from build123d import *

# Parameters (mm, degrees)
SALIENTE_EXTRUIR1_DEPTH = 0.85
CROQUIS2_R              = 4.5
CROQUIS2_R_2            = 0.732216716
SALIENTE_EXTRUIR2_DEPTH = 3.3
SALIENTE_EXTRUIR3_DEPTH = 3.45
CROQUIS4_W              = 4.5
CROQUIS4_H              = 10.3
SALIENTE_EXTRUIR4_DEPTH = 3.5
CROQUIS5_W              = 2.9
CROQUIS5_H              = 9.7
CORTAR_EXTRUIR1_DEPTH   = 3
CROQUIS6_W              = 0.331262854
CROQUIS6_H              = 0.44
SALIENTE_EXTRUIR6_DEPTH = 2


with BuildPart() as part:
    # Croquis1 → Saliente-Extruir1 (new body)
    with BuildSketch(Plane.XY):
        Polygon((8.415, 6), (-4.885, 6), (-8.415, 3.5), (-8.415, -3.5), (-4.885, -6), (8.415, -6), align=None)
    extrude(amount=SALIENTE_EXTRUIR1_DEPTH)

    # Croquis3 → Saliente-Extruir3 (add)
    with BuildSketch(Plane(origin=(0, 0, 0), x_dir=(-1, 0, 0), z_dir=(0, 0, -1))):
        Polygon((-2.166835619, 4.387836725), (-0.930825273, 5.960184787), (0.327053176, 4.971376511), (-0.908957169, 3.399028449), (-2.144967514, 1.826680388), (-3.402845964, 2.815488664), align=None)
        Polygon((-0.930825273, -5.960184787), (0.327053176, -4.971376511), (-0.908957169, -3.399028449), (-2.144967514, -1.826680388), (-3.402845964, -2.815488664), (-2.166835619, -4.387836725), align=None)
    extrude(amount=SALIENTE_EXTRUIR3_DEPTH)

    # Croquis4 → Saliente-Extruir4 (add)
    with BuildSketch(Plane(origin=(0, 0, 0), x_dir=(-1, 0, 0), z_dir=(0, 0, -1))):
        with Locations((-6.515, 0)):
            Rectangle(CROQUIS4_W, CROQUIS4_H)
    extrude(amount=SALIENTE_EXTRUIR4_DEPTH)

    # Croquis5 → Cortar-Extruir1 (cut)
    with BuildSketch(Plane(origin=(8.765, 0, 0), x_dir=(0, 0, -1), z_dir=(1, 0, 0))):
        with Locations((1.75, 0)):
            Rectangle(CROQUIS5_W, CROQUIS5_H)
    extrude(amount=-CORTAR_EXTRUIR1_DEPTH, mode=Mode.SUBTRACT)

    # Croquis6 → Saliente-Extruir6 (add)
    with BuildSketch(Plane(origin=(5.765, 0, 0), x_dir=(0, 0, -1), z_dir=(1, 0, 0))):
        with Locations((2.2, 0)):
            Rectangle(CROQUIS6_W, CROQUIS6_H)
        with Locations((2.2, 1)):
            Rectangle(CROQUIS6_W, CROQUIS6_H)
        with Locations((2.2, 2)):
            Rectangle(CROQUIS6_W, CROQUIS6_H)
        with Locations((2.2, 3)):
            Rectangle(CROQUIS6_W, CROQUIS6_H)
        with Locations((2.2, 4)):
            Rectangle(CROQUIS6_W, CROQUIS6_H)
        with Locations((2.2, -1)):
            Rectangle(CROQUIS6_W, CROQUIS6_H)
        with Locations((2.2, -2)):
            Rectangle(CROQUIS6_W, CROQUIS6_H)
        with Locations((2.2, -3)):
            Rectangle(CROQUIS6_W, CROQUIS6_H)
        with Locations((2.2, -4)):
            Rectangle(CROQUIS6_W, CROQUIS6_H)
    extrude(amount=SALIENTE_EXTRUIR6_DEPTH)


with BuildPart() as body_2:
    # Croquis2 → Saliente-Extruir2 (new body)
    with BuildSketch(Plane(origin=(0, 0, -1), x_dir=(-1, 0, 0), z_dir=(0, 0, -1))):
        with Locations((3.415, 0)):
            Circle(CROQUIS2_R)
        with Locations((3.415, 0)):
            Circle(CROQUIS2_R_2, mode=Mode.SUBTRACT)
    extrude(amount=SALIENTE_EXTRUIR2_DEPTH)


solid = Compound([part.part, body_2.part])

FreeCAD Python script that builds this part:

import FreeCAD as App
import Part
import Sketcher

V = App.Vector
Q = App.Units.Quantity

doc = App.newDocument("Part")
body = doc.addObject("PartDesign::Body", "Body")

# Sketch on XY plane
sketch1 = doc.addObject("Sketcher::SketchObject", "Sketch")
body.addObject(sketch1)
sketch1.AttachmentSupport = (doc.XY_Plane, [""])
sketch1.MapMode = "FlatFace"
sketch1.addGeometry(Part.LineSegment(V(8.4, 6, 0), V(-4.9, 6, 0)), False)
sketch1.addGeometry(Part.LineSegment(V(-4.9, 6, 0), V(-8.4, 3.5, 0)), False)
sketch1.addGeometry(Part.LineSegment(V(-8.4, 3.5, 0), V(-8.4, -3.5, 0)), False)
sketch1.addGeometry(Part.LineSegment(V(-8.4, -3.5, 0), V(-4.9, -6, 0)), False)
sketch1.addGeometry(Part.LineSegment(V(-4.9, -6, 0), V(8.4, -6, 0)), False)
sketch1.addGeometry(Part.LineSegment(V(8.4, -6, 0), V(8.4, 6, 0)), False)
sketch1.addConstraint(Sketcher.Constraint("Coincident", 0, 2, 1, 1))
sketch1.addConstraint(Sketcher.Constraint("Coincident", 1, 2, 2, 1))
sketch1.addConstraint(Sketcher.Constraint("Coincident", 2, 2, 3, 1))
sketch1.addConstraint(Sketcher.Constraint("Coincident", 3, 2, 4, 1))
sketch1.addConstraint(Sketcher.Constraint("Coincident", 4, 2, 5, 1))
sketch1.addConstraint(Sketcher.Constraint("Coincident", 5, 2, 0, 1))
sketch1.addConstraint(Sketcher.Constraint("Horizontal", 0))
sketch1.addConstraint(Sketcher.Constraint("Vertical", 2))
sketch1.addConstraint(Sketcher.Constraint("Horizontal", 4))
sketch1.addConstraint(Sketcher.Constraint("Vertical", 5))
sketch1.addConstraint(Sketcher.Constraint("Symmetric", 0, 2, 3, 2, -1))
sketch1.addConstraint(Sketcher.Constraint("Equal", 1, 3))
sketch1.addConstraint(Sketcher.Constraint("DistanceY", 2, 2, 2, 1, Q("7 mm")))
sketch1.addConstraint(Sketcher.Constraint("DistanceY", 5, 1, 5, 2, Q("12 mm")))
sketch1.addConstraint(Sketcher.Constraint("DistanceX", 0, 2, 0, 1, Q("13.3 mm")))
sketch1.addConstraint(Sketcher.Constraint("DistanceX", 1, 2, 0, 2, Q("3.53 mm")))
sketch1.addConstraint(Sketcher.Constraint("DistanceX", 0, 2, -1, 1, Q("4.885 mm")))
pad1 = doc.addObject("PartDesign::Pad", "Pad")
body.addObject(pad1)
pad1.Profile = sketch1
pad1.Length = 0.85

# Sketch on XY plane
sketch2 = doc.addObject("Sketcher::SketchObject", "Sketch001")
body.addObject(sketch2)
sketch2.AttachmentSupport = (doc.XY_Plane, [""])
sketch2.MapMode = "FlatFace"
sketch2.addGeometry(Part.LineSegment(V(0.9, 6, 0), V(2.2, 4.4, 0)), False)
sketch2.addGeometry(Part.LineSegment(V(2.2, 4.4, 0), V(3.4, 2.8, 0)), False)
sketch2.addGeometry(Part.LineSegment(V(3.4, 2.8, 0), V(2.1, 1.8, 0)), False)
sketch2.addGeometry(Part.LineSegment(V(2.1, 1.8, 0), V(0.9, 3.4, 0)), False)
sketch2.addGeometry(Part.LineSegment(V(0.9, 3.4, 0), V(-0.3, 5, 0)), False)
sketch2.addGeometry(Part.LineSegment(V(-0.3, 5, 0), V(0.9, 6, 0)), False)
sketch2.addGeometry(Part.LineSegment(V(0.9, -6, 0), V(-0.3, -5, 0)), False)
sketch2.addGeometry(Part.LineSegment(V(-0.3, -5, 0), V(0.9, -3.4, 0)), False)
sketch2.addGeometry(Part.LineSegment(V(0.9, -3.4, 0), V(2.1, -1.8, 0)), False)
sketch2.addGeometry(Part.LineSegment(V(2.1, -1.8, 0), V(3.4, -2.8, 0)), False)
sketch2.addGeometry(Part.LineSegment(V(3.4, -2.8, 0), V(2.2, -4.4, 0)), False)
sketch2.addGeometry(Part.LineSegment(V(2.2, -4.4, 0), V(0.9, -6, 0)), False)
sketch2.addConstraint(Sketcher.Constraint("Coincident", 0, 2, 1, 1))
sketch2.addConstraint(Sketcher.Constraint("Coincident", 1, 2, 2, 1))
sketch2.addConstraint(Sketcher.Constraint("Coincident", 2, 2, 3, 1))
sketch2.addConstraint(Sketcher.Constraint("Coincident", 3, 2, 4, 1))
sketch2.addConstraint(Sketcher.Constraint("Coincident", 4, 2, 5, 1))
sketch2.addConstraint(Sketcher.Constraint("Coincident", 5, 2, 0, 1))
sketch2.addConstraint(Sketcher.Constraint("Coincident", 6, 2, 7, 1))
sketch2.addConstraint(Sketcher.Constraint("Coincident", 7, 2, 8, 1))
sketch2.addConstraint(Sketcher.Constraint("Coincident", 8, 2, 9, 1))
sketch2.addConstraint(Sketcher.Constraint("Coincident", 9, 2, 10, 1))
sketch2.addConstraint(Sketcher.Constraint("Coincident", 10, 2, 11, 1))
sketch2.addConstraint(Sketcher.Constraint("Coincident", 11, 2, 6, 1))
sketch2.addConstraint(Sketcher.Constraint("Symmetric", 4, 2, 6, 2, -1))
sketch2.addConstraint(Sketcher.Constraint("Symmetric", 3, 2, 7, 2, -1))
sketch2.addConstraint(Sketcher.Constraint("Symmetric", 2, 2, 8, 2, -1))
sketch2.addConstraint(Sketcher.Constraint("Symmetric", 1, 2, 9, 2, -1))
sketch2.addConstraint(Sketcher.Constraint("Symmetric", 0, 2, 10, 2, -1))
sketch2.addConstraint(Sketcher.Constraint("Symmetric", 5, 2, 11, 2, -1))
sketch2.addConstraint(Sketcher.Constraint("Parallel", 0, 1))
sketch2.addConstraint(Sketcher.Constraint("Perpendicular", 1, 2))
sketch2.addConstraint(Sketcher.Constraint("Perpendicular", 2, 3))
sketch2.addConstraint(Sketcher.Constraint("Parallel", 3, 4))
sketch2.addConstraint(Sketcher.Constraint("Perpendicular", 4, 5))
sketch2.addConstraint(Sketcher.Constraint("Equal", 0, 1))
sketch2.addConstraint(Sketcher.Constraint("Equal", 1, 3))
sketch2.addConstraint(Sketcher.Constraint("Distance", 0, Q("2 mm")))
sketch2.addConstraint(Sketcher.Constraint("Distance", 2, Q("1.6 mm")))
sketch2.addConstraint(Sketcher.Constraint("DistanceX", 4, 2, 1, 2, Q("3.729899 mm")))
sketch2.addConstraint(Sketcher.Constraint("DistanceY", -1, 1, 1, 2, Q("2.815489 mm")))
sketch2.addConstraint(Sketcher.Constraint("DistanceX", -1, 1, 0, 2, Q("2.166836 mm")))
pad2 = doc.addObject("PartDesign::Pad", "Pad001")
body.addObject(pad2)
pad2.Profile = sketch2
pad2.Length = 3.45
pad2.Reversed = True

# Sketch on XY plane
sketch3 = doc.addObject("Sketcher::SketchObject", "Sketch002")
body.addObject(sketch3)
sketch3.AttachmentSupport = (doc.XY_Plane, [""])
sketch3.MapMode = "FlatFace"
sketch3.addGeometry(Part.LineSegment(V(8.8, 5.2, 0), V(8.8, -5.2, 0)), False)
sketch3.addGeometry(Part.LineSegment(V(8.8, -5.2, 0), V(4.3, -5.2, 0)), False)
sketch3.addGeometry(Part.LineSegment(V(4.3, -5.2, 0), V(4.3, 5.2, 0)), False)
sketch3.addGeometry(Part.LineSegment(V(4.3, 5.2, 0), V(8.8, 5.2, 0)), False)
sketch3.addConstraint(Sketcher.Constraint("Coincident", 0, 2, 1, 1))
sketch3.addConstraint(Sketcher.Constraint("Coincident", 1, 2, 2, 1))
sketch3.addConstraint(Sketcher.Constraint("Coincident", 2, 2, 3, 1))
sketch3.addConstraint(Sketcher.Constraint("Coincident", 3, 2, 0, 1))
sketch3.addConstraint(Sketcher.Constraint("Vertical", 0))
sketch3.addConstraint(Sketcher.Constraint("Horizontal", 1))
sketch3.addConstraint(Sketcher.Constraint("Vertical", 2))
sketch3.addConstraint(Sketcher.Constraint("Horizontal", 3))
sketch3.addConstraint(Sketcher.Constraint("DistanceX", 1, 2, 1, 1, Q("4.5 mm")))
sketch3.addConstraint(Sketcher.Constraint("DistanceY", 0, 2, 0, 1, Q("10.3 mm")))
sketch3.addConstraint(Sketcher.Constraint("DistanceY", 0, 2, -1, 1, Q("5.15 mm")))
sketch3.addConstraint(Sketcher.Constraint("DistanceX", -1, 1, 0, 2, Q("8.765 mm")))
pad3 = doc.addObject("PartDesign::Pad", "Pad002")
body.addObject(pad3)
pad3.Profile = sketch3
pad3.Length = 3.5
pad3.Reversed = True

# Sketch on YZ plane
sketch4 = doc.addObject("Sketcher::SketchObject", "Sketch003")
body.addObject(sketch4)
sketch4.AttachmentSupport = (doc.YZ_Plane, [""])
sketch4.MapMode = "FlatFace"
sketch4.AttachmentOffset = App.Placement(V(0, 0, 8.765), App.Rotation())
sketch4.addGeometry(Part.LineSegment(V(4.8, -0.3, 0), V(-4.8, -0.3, 0)), False)
sketch4.addGeometry(Part.LineSegment(V(-4.8, -0.3, 0), V(-4.8, -3.2, 0)), False)
sketch4.addGeometry(Part.LineSegment(V(-4.8, -3.2, 0), V(4.8, -3.2, 0)), False)
sketch4.addGeometry(Part.LineSegment(V(4.8, -3.2, 0), V(4.8, -0.3, 0)), False)
sketch4.addConstraint(Sketcher.Constraint("Coincident", 0, 2, 1, 1))
sketch4.addConstraint(Sketcher.Constraint("Coincident", 1, 2, 2, 1))
sketch4.addConstraint(Sketcher.Constraint("Coincident", 2, 2, 3, 1))
sketch4.addConstraint(Sketcher.Constraint("Coincident", 3, 2, 0, 1))
sketch4.addConstraint(Sketcher.Constraint("Horizontal", 0))
sketch4.addConstraint(Sketcher.Constraint("Vertical", 1))
sketch4.addConstraint(Sketcher.Constraint("Horizontal", 2))
sketch4.addConstraint(Sketcher.Constraint("Vertical", 3))
sketch4.addConstraint(Sketcher.Constraint("DistanceX", 0, 2, 0, 1, Q("9.7 mm")))
sketch4.addConstraint(Sketcher.Constraint("DistanceY", 1, 2, 1, 1, Q("2.9 mm")))
sketch4.addConstraint(Sketcher.Constraint("DistanceY", 0, 2, -1, 1, Q("0.3 mm")))
sketch4.addConstraint(Sketcher.Constraint("DistanceX", 0, 2, -1, 1, Q("4.85 mm")))
pocket1 = doc.addObject("PartDesign::Pocket", "Pocket")
body.addObject(pocket1)
pocket1.Profile = sketch4
pocket1.Length = 3

# Sketch on YZ plane
sketch5 = doc.addObject("Sketcher::SketchObject", "Sketch004")
body.addObject(sketch5)
sketch5.AttachmentSupport = (doc.YZ_Plane, [""])
sketch5.MapMode = "FlatFace"
sketch5.AttachmentOffset = App.Placement(V(0, 0, 5.765), App.Rotation())
sketch5.addGeometry(Part.LineSegment(V(0.22, -2.03, 0), V(-0.22, -2.03, 0)), False)
sketch5.addGeometry(Part.LineSegment(V(-0.22, -2.03, 0), V(-0.22, -2.37, 0)), False)
sketch5.addGeometry(Part.LineSegment(V(-0.22, -2.37, 0), V(0.22, -2.37, 0)), False)
sketch5.addGeometry(Part.LineSegment(V(0.22, -2.37, 0), V(0.22, -2.03, 0)), False)
sketch5.addGeometry(Part.LineSegment(V(1.22, -2.03, 0), V(0.78, -2.03, 0)), False)
sketch5.addGeometry(Part.LineSegment(V(0.78, -2.03, 0), V(0.78, -2.37, 0)), False)
sketch5.addGeometry(Part.LineSegment(V(0.78, -2.37, 0), V(1.22, -2.37, 0)), False)
sketch5.addGeometry(Part.LineSegment(V(1.22, -2.37, 0), V(1.22, -2.03, 0)), False)
sketch5.addGeometry(Part.LineSegment(V(2.22, -2.03, 0), V(1.78, -2.03, 0)), False)
sketch5.addGeometry(Part.LineSegment(V(1.78, -2.03, 0), V(1.78, -2.37, 0)), False)
sketch5.addGeometry(Part.LineSegment(V(1.78, -2.37, 0), V(2.22, -2.37, 0)), False)
sketch5.addGeometry(Part.LineSegment(V(2.22, -2.37, 0), V(2.22, -2.03, 0)), False)
sketch5.addGeometry(Part.LineSegment(V(3.22, -2.03, 0), V(2.78, -2.03, 0)), False)
sketch5.addGeometry(Part.LineSegment(V(2.78, -2.03, 0), V(2.78, -2.37, 0)), False)
sketch5.addGeometry(Part.LineSegment(V(2.78, -2.37, 0), V(3.22, -2.37, 0)), False)
sketch5.addGeometry(Part.LineSegment(V(3.22, -2.37, 0), V(3.22, -2.03, 0)), False)
sketch5.addGeometry(Part.LineSegment(V(4.22, -2.03, 0), V(3.78, -2.03, 0)), False)
sketch5.addGeometry(Part.LineSegment(V(3.78, -2.03, 0), V(3.78, -2.37, 0)), False)
sketch5.addGeometry(Part.LineSegment(V(3.78, -2.37, 0), V(4.22, -2.37, 0)), False)
sketch5.addGeometry(Part.LineSegment(V(4.22, -2.37, 0), V(4.22, -2.03, 0)), False)
sketch5.addGeometry(Part.LineSegment(V(-0.78, -2.03, 0), V(-1.22, -2.03, 0)), False)
sketch5.addGeometry(Part.LineSegment(V(-1.22, -2.03, 0), V(-1.22, -2.37, 0)), False)
sketch5.addGeometry(Part.LineSegment(V(-1.22, -2.37, 0), V(-0.78, -2.37, 0)), False)
sketch5.addGeometry(Part.LineSegment(V(-0.78, -2.37, 0), V(-0.78, -2.03, 0)), False)
sketch5.addGeometry(Part.LineSegment(V(-1.78, -2.03, 0), V(-2.22, -2.03, 0)), False)
sketch5.addGeometry(Part.LineSegment(V(-2.22, -2.03, 0), V(-2.22, -2.37, 0)), False)
sketch5.addGeometry(Part.LineSegment(V(-2.22, -2.37, 0), V(-1.78, -2.37, 0)), False)
sketch5.addGeometry(Part.LineSegment(V(-1.78, -2.37, 0), V(-1.78, -2.03, 0)), False)
sketch5.addGeometry(Part.LineSegment(V(-2.78, -2.03, 0), V(-3.22, -2.03, 0)), False)
sketch5.addGeometry(Part.LineSegment(V(-3.22, -2.03, 0), V(-3.22, -2.37, 0)), False)
sketch5.addGeometry(Part.LineSegment(V(-3.22, -2.37, 0), V(-2.78, -2.37, 0)), False)
sketch5.addGeometry(Part.LineSegment(V(-2.78, -2.37, 0), V(-2.78, -2.03, 0)), False)
sketch5.addGeometry(Part.LineSegment(V(-3.78, -2.03, 0), V(-4.22, -2.03, 0)), False)
sketch5.addGeometry(Part.LineSegment(V(-4.22, -2.03, 0), V(-4.22, -2.37, 0)), False)
sketch5.addGeometry(Part.LineSegment(V(-4.22, -2.37, 0), V(-3.78, -2.37, 0)), False)
sketch5.addGeometry(Part.LineSegment(V(-3.78, -2.37, 0), V(-3.78, -2.03, 0)), False)
sketch5.addConstraint(Sketcher.Constraint("Coincident", 0, 2, 1, 1))
sketch5.addConstraint(Sketcher.Constraint("Coincident", 1, 2, 2, 1))
sketch5.addConstraint(Sketcher.Constraint("Coincident", 2, 2, 3, 1))
sketch5.addConstraint(Sketcher.Constraint("Coincident", 3, 2, 0, 1))
sketch5.addConstraint(Sketcher.Constraint("Coincident", 4, 2, 5, 1))
sketch5.addConstraint(Sketcher.Constraint("Coincident", 5, 2, 6, 1))
sketch5.addConstraint(Sketcher.Constraint("Coincident", 6, 2, 7, 1))
sketch5.addConstraint(Sketcher.Constraint("Coincident", 7, 2, 4, 1))
sketch5.addConstraint(Sketcher.Constraint("Coincident", 8, 2, 9, 1))
sketch5.addConstraint(Sketcher.Constraint("Coincident", 9, 2, 10, 1))
sketch5.addConstraint(Sketcher.Constraint("Coincident", 10, 2, 11, 1))
sketch5.addConstraint(Sketcher.Constraint("Coincident", 11, 2, 8, 1))
sketch5.addConstraint(Sketcher.Constraint("Coincident", 12, 2, 13, 1))
sketch5.addConstraint(Sketcher.Constraint("Coincident", 13, 2, 14, 1))
sketch5.addConstraint(Sketcher.Constraint("Coincident", 14, 2, 15, 1))
sketch5.addConstraint(Sketcher.Constraint("Coincident", 15, 2, 12, 1))
sketch5.addConstraint(Sketcher.Constraint("Coincident", 16, 2, 17, 1))
sketch5.addConstraint(Sketcher.Constraint("Coincident", 17, 2, 18, 1))
sketch5.addConstraint(Sketcher.Constraint("Coincident", 18, 2, 19, 1))
sketch5.addConstraint(Sketcher.Constraint("Coincident", 19, 2, 16, 1))
sketch5.addConstraint(Sketcher.Constraint("Coincident", 20, 2, 21, 1))
sketch5.addConstraint(Sketcher.Constraint("Coincident", 21, 2, 22, 1))
sketch5.addConstraint(Sketcher.Constraint("Coincident", 22, 2, 23, 1))
sketch5.addConstraint(Sketcher.Constraint("Coincident", 23, 2, 20, 1))
sketch5.addConstraint(Sketcher.Constraint("Coincident", 24, 2, 25, 1))
sketch5.addConstraint(Sketcher.Constraint("Coincident", 25, 2, 26, 1))
sketch5.addConstraint(Sketcher.Constraint("Coincident", 26, 2, 27, 1))
sketch5.addConstraint(Sketcher.Constraint("Coincident", 27, 2, 24, 1))
sketch5.addConstraint(Sketcher.Constraint("Coincident", 28, 2, 29, 1))
sketch5.addConstraint(Sketcher.Constraint("Coincident", 29, 2, 30, 1))
sketch5.addConstraint(Sketcher.Constraint("Coincident", 30, 2, 31, 1))
sketch5.addConstraint(Sketcher.Constraint("Coincident", 31, 2, 28, 1))
sketch5.addConstraint(Sketcher.Constraint("Coincident", 32, 2, 33, 1))
sketch5.addConstraint(Sketcher.Constraint("Coincident", 33, 2, 34, 1))
sketch5.addConstraint(Sketcher.Constraint("Coincident", 34, 2, 35, 1))
sketch5.addConstraint(Sketcher.Constraint("Coincident", 35, 2, 32, 1))
sketch5.addConstraint(Sketcher.Constraint("Horizontal", 0))
sketch5.addConstraint(Sketcher.Constraint("Vertical", 1))
sketch5.addConstraint(Sketcher.Constraint("Horizontal", 2))
sketch5.addConstraint(Sketcher.Constraint("Vertical", 3))
sketch5.addConstraint(Sketcher.Constraint("Horizontal", 4))
sketch5.addConstraint(Sketcher.Constraint("Vertical", 5))
sketch5.addConstraint(Sketcher.Constraint("Horizontal", 6))
sketch5.addConstraint(Sketcher.Constraint("Vertical", 7))
sketch5.addConstraint(Sketcher.Constraint("Horizontal", 8))
sketch5.addConstraint(Sketcher.Constraint("Vertical", 9))
sketch5.addConstraint(Sketcher.Constraint("Horizontal", 10))
sketch5.addConstraint(Sketcher.Constraint("Vertical", 11))
sketch5.addConstraint(Sketcher.Constraint("Horizontal", 12))
sketch5.addConstraint(Sketcher.Constraint("Vertical", 13))
sketch5.addConstraint(Sketcher.Constraint("Horizontal", 14))
sketch5.addConstraint(Sketcher.Constraint("Vertical", 15))
sketch5.addConstraint(Sketcher.Constraint("Horizontal", 16))
sketch5.addConstraint(Sketcher.Constraint("Vertical", 17))
sketch5.addConstraint(Sketcher.Constraint("Horizontal", 18))
sketch5.addConstraint(Sketcher.Constraint("Vertical", 19))
sketch5.addConstraint(Sketcher.Constraint("Horizontal", 20))
sketch5.addConstraint(Sketcher.Constraint("Vertical", 21))
sketch5.addConstraint(Sketcher.Constraint("Horizontal", 22))
sketch5.addConstraint(Sketcher.Constraint("Vertical", 23))
sketch5.addConstraint(Sketcher.Constraint("Horizontal", 24))
sketch5.addConstraint(Sketcher.Constraint("Vertical", 25))
sketch5.addConstraint(Sketcher.Constraint("Horizontal", 26))
sketch5.addConstraint(Sketcher.Constraint("Vertical", 27))
sketch5.addConstraint(Sketcher.Constraint("Horizontal", 28))
sketch5.addConstraint(Sketcher.Constraint("Vertical", 29))
sketch5.addConstraint(Sketcher.Constraint("Horizontal", 30))
sketch5.addConstraint(Sketcher.Constraint("Vertical", 31))
sketch5.addConstraint(Sketcher.Constraint("Horizontal", 32))
sketch5.addConstraint(Sketcher.Constraint("Vertical", 33))
sketch5.addConstraint(Sketcher.Constraint("Horizontal", 34))
sketch5.addConstraint(Sketcher.Constraint("Vertical", 35))
sketch5.addConstraint(Sketcher.Constraint("Symmetric", 7, 2, 20, 2, -2))
sketch5.addConstraint(Sketcher.Constraint("Symmetric", 5, 2, 22, 2, -2))
sketch5.addConstraint(Sketcher.Constraint("Symmetric", 11, 2, 24, 2, -2))
sketch5.addConstraint(Sketcher.Constraint("Symmetric", 9, 2, 26, 2, -2))
sketch5.addConstraint(Sketcher.Constraint("Symmetric", 15, 2, 28, 2, -2))
sketch5.addConstraint(Sketcher.Constraint("Symmetric", 13, 2, 30, 2, -2))
sketch5.addConstraint(Sketcher.Constraint("Symmetric", 19, 2, 32, 2, -2))
sketch5.addConstraint(Sketcher.Constraint("Symmetric", 17, 2, 34, 2, -2))
sketch5.addConstraint(Sketcher.Constraint("Horizontal", 3, 2, 4, 2))
sketch5.addConstraint(Sketcher.Constraint("Horizontal", 2, 2, 5, 2))
sketch5.addConstraint(Sketcher.Constraint("Horizontal", 7, 2, 8, 2))
sketch5.addConstraint(Sketcher.Constraint("Horizontal", 6, 2, 9, 2))
sketch5.addConstraint(Sketcher.Constraint("Horizontal", 11, 2, 12, 2))
sketch5.addConstraint(Sketcher.Constraint("Horizontal", 10, 2, 13, 2))
sketch5.addConstraint(Sketcher.Constraint("Horizontal", 15, 2, 16, 2))
sketch5.addConstraint(Sketcher.Constraint("Horizontal", 14, 2, 17, 2))
sketch5.addConstraint(Sketcher.Constraint("Equal", 2, 4))
sketch5.addConstraint(Sketcher.Constraint("Equal", 6, 8))
sketch5.addConstraint(Sketcher.Constraint("Equal", 10, 12))
sketch5.addConstraint(Sketcher.Constraint("Equal", 14, 16))
sketch5.addConstraint(Sketcher.Constraint("DistanceX", 0, 2, 4, 2, Q("1 mm")))
sketch5.addConstraint(Sketcher.Constraint("DistanceX", 4, 2, 8, 2, Q("1 mm")))
sketch5.addConstraint(Sketcher.Constraint("DistanceX", 8, 2, 12, 2, Q("1 mm")))
sketch5.addConstraint(Sketcher.Constraint("DistanceX", 12, 2, 16, 2, Q("1 mm")))
sketch5.addConstraint(Sketcher.Constraint("DistanceX", 20, 2, 0, 2, Q("1 mm")))
sketch5.addConstraint(Sketcher.Constraint("DistanceX", 0, 2, 0, 1, Q("0.44 mm")))
sketch5.addConstraint(Sketcher.Constraint("DistanceY", 1, 2, 1, 1, Q("0.331263 mm")))
sketch5.addConstraint(Sketcher.Constraint("DistanceY", 0, 2, -1, 1, Q("2.034369 mm")))
pad4 = doc.addObject("PartDesign::Pad", "Pad003")
body.addObject(pad4)
pad4.Profile = sketch5
pad4.Length = 2
body2 = doc.addObject("PartDesign::Body", "Body001")

# Sketch on XY plane
sketch6 = doc.addObject("Sketcher::SketchObject", "Sketch005")
body2.addObject(sketch6)
sketch6.AttachmentSupport = (doc.getObject("XY_Plane001"), [""])
sketch6.MapMode = "FlatFace"
sketch6.AttachmentOffset = App.Placement(V(0, 0, -1), App.Rotation())
sketch6.addGeometry(Part.Circle(V(-3.4, 0, 0), V(0, 0, 1), 4.5), False)
sketch6.addGeometry(Part.Circle(V(-3.4, 0, 0), V(0, 0, 1), 0.7), False)
sketch6.addConstraint(Sketcher.Constraint("Coincident", 1, 3, 0, 3))
sketch6.addConstraint(Sketcher.Constraint("PointOnObject", 0, 3, -1))
sketch6.addConstraint(Sketcher.Constraint("Diameter", 0, Q("9 mm")))
sketch6.addConstraint(Sketcher.Constraint("Diameter", 1, Q("1.464433 mm")))
sketch6.addConstraint(Sketcher.Constraint("DistanceX", 0, 3, -1, 1, Q("3.415 mm")))
pad5 = doc.addObject("PartDesign::Pad", "Pad004")
body2.addObject(pad5)
pad5.Profile = sketch6
pad5.Length = 3.3
pad5.Reversed = True

doc.recompute()
